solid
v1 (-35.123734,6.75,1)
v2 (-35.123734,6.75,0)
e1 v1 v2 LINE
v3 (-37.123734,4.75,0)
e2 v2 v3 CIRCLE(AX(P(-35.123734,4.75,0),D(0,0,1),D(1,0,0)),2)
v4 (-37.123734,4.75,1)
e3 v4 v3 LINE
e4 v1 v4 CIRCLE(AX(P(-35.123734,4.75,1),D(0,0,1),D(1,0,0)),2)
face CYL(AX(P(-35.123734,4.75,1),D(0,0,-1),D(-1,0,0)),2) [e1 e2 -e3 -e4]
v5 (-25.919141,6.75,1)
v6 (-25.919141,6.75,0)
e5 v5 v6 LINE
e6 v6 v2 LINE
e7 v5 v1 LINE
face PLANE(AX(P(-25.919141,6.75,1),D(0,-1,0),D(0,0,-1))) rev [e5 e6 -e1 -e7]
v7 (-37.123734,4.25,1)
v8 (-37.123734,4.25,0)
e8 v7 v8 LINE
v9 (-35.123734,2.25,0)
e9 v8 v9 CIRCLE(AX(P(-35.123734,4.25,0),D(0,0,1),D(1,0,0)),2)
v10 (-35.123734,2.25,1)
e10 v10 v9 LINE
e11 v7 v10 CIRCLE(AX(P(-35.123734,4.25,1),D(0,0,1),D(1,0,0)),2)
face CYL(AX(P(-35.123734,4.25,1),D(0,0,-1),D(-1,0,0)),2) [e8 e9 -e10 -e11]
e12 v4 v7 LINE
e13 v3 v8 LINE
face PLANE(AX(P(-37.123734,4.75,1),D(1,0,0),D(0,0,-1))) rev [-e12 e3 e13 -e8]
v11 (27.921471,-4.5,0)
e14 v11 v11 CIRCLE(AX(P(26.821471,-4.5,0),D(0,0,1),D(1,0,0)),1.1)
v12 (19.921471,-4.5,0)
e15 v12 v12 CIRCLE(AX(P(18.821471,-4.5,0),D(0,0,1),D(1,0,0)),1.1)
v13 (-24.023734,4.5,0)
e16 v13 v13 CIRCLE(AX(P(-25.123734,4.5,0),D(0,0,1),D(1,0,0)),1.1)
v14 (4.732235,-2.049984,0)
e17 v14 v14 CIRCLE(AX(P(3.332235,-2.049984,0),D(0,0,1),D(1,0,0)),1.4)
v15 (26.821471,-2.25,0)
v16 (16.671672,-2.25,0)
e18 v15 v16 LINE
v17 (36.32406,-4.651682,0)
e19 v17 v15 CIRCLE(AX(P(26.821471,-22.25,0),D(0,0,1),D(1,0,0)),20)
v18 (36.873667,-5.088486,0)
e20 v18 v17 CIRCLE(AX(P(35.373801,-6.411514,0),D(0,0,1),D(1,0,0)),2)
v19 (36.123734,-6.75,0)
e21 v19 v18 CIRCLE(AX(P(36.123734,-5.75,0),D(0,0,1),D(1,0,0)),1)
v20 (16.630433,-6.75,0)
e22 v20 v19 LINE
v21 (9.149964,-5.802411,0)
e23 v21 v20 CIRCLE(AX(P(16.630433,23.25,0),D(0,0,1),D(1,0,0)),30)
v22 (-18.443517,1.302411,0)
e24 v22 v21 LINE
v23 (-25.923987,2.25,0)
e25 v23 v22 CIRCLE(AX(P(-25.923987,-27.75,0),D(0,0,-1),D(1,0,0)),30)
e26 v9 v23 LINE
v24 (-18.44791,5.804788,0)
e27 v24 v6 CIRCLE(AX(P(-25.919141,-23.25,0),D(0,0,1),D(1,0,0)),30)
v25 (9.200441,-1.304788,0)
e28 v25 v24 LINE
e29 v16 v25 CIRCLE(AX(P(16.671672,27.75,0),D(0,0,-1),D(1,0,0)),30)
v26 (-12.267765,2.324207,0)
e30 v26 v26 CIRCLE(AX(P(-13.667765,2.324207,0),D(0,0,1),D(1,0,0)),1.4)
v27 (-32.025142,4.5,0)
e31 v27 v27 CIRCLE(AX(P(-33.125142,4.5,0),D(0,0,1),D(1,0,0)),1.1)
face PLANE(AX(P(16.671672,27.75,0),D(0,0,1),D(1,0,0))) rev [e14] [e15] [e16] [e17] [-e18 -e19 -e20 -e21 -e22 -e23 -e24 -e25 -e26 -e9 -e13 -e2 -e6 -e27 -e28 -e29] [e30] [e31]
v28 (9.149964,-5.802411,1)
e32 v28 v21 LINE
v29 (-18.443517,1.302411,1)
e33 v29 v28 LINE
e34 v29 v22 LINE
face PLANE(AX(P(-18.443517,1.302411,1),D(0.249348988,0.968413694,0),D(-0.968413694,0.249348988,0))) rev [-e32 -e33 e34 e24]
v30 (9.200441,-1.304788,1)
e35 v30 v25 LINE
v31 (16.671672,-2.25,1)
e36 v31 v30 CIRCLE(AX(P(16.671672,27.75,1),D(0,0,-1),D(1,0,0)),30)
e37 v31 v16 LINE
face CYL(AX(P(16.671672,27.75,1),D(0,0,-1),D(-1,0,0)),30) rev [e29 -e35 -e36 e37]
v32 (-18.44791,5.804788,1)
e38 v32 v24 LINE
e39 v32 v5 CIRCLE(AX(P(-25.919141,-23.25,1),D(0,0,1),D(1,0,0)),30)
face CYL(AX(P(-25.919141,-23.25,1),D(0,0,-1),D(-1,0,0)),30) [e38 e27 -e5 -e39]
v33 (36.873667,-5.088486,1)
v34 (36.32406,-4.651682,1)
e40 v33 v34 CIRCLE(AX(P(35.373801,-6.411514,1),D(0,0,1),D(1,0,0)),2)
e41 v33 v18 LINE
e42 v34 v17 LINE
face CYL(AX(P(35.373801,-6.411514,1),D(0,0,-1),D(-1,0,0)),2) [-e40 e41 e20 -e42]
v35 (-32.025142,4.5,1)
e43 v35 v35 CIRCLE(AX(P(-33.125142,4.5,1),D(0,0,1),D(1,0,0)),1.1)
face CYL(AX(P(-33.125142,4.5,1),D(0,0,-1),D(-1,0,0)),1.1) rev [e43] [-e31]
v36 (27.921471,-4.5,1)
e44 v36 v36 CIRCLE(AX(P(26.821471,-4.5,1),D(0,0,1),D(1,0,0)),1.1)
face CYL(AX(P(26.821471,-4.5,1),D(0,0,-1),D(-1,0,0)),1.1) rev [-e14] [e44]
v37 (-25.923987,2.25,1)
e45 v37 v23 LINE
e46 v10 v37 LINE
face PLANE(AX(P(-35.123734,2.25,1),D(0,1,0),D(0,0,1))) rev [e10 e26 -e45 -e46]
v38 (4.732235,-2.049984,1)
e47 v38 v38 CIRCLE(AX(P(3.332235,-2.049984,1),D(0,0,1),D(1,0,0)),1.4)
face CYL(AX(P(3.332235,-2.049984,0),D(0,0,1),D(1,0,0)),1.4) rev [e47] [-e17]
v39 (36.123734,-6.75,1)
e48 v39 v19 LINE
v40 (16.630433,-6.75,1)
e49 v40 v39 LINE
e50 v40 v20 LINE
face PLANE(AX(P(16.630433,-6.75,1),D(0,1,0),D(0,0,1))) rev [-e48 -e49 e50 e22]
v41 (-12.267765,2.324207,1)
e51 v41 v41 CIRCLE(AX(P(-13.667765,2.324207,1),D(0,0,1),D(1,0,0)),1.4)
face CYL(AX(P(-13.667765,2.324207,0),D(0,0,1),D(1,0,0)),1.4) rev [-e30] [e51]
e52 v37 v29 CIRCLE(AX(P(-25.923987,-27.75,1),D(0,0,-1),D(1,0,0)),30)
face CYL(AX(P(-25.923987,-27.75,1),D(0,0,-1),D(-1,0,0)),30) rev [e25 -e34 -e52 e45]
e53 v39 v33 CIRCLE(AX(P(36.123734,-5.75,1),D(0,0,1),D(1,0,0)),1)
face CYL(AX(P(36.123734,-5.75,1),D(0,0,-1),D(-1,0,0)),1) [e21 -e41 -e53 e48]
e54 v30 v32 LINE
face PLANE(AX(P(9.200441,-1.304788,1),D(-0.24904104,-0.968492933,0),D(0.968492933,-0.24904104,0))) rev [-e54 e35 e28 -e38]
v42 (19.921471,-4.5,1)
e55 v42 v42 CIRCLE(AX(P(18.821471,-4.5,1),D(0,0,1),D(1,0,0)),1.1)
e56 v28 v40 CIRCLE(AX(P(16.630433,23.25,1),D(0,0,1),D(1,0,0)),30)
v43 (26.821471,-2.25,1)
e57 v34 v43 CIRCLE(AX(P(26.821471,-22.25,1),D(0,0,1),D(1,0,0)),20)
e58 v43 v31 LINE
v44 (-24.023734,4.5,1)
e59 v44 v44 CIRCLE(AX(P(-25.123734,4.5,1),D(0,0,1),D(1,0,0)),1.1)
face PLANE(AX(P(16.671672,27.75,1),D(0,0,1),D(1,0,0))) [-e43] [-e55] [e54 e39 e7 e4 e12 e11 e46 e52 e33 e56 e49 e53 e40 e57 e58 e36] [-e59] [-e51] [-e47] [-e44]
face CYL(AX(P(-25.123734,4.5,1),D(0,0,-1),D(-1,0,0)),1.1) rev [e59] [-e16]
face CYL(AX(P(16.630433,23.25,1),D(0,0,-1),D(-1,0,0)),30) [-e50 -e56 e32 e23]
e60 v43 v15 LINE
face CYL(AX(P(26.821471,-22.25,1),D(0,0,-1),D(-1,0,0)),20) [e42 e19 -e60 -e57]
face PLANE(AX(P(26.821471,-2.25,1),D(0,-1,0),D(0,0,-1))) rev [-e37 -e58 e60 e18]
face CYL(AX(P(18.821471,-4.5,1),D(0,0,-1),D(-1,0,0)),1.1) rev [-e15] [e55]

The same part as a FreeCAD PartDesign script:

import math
import FreeCAD as App
import Part
import Sketcher

V = App.Vector

doc = App.newDocument("Part")
params = doc.addObject("Spreadsheet::Sheet", "Params")
for row, (alias, value) in enumerate([
    ("sketch1_radius", "30 mm"),
    ("sketch1_radius2", "2 mm"),
    ("sketch1_radius3", "1 mm"),
    ("sketch1_radius4", "20 mm"),
    ("sketch1_diameter", "2.2 mm"),
    ("pad1_length", "1 mm"),
    ("sketch2_diameter", "2.8 mm"),
], start=1):
    params.set(f"A{row}", alias)
    params.set(f"B{row}", "=" + value)
    params.setAlias(f"B{row}", alias)

body = doc.addObject("PartDesign::Body", "Body")

# Sketch on XY plane
sketch1 = body.newObject("Sketcher::SketchObject", "Sketch")
sketch1.AttachmentSupport = (doc.getObject("XY_Plane"), [""])
sketch1.MapMode = "FlatFace"
sketch1.addGeometry(Part.LineSegment(V(9.200441, -1.304788, 0), V(-18.44791, 5.804788, 0)), False)
sketch1.addGeometry(Part.ArcOfCircle(Part.Circle(V(-25.919141, -23.25, 0), V(0, 0, 1), 30), math.radians(75.579227), math.radians(90)), False)
sketch1.addGeometry(Part.LineSegment(V(-25.919141, 6.75, 0), V(-35.123734, 6.75, 0)), False)
sketch1.addGeometry(Part.ArcOfCircle(Part.Circle(V(-35.123734, 4.75, 0), V(0, 0, 1), 2), math.radians(90), math.radians(180)), False)
sketch1.addGeometry(Part.LineSegment(V(-37.123734, 4.75, 0), V(-37.123734, 4.25, 0)), False)
sketch1.addGeometry(Part.ArcOfCircle(Part.Circle(V(-35.123734, 4.25, 0), V(0, 0, 1), 2), math.radians(-180), math.radians(-90)), False)
sketch1.addGeometry(Part.LineSegment(V(-35.123734, 2.25, 0), V(-25.923987, 2.25, 0)), False)
sketch1.addGeometry(Part.ArcOfCircle(Part.Circle(V(-25.923987, -27.75, 0), V(0, 0, 1), 30), math.radians(75.561008), math.radians(90)), False)
sketch1.addGeometry(Part.LineSegment(V(-18.443517, 1.302411, 0), V(9.149964, -5.802411, 0)), False)
sketch1.addGeometry(Part.ArcOfCircle(Part.Circle(V(16.630433, 23.25, 0), V(0, 0, 1), 30), math.radians(-104.438992), math.radians(-90)), False)
sketch1.addGeometry(Part.LineSegment(V(16.630433, -6.75, 0), V(36.123734, -6.75, 0)), False)
sketch1.addGeometry(Part.ArcOfCircle(Part.Circle(V(36.123734, -5.75, 0), V(0, 0, 1), 1), math.radians(-90), math.radians(41.415406)), False)
sketch1.addGeometry(Part.ArcOfCircle(Part.Circle(V(35.373801, -6.411514, 0), V(0, 0, 1), 2), math.radians(41.415406), math.radians(61.632222)), False)
sketch1.addGeometry(Part.ArcOfCircle(Part.Circle(V(26.821471, -22.25, 0), V(0, 0, 1), 20), math.radians(61.632222), math.radians(90)), False)
sketch1.addGeometry(Part.LineSegment(V(26.821471, -2.25, 0), V(16.671672, -2.25, 0)), False)
sketch1.addGeometry(Part.ArcOfCircle(Part.Circle(V(16.671672, 27.75, 0), V(0, 0, 1), 30), math.radians(-104.420773), math.radians(-90)), False)
sketch1.addGeometry(Part.Circle(V(18.821471, -4.5, 0), V(0, 0, 1), 1.1), False)
sketch1.addGeometry(Part.Circle(V(26.821471, -4.5, 0), V(0, 0, 1), 1.1), False)
sketch1.addGeometry(Part.Circle(V(-33.125142, 4.5, 0), V(0, 0, 1), 1.1), False)
sketch1.addGeometry(Part.Circle(V(-25.123734, 4.5, 0), V(0, 0, 1), 1.1), False)
sketch1.addConstraint(Sketcher.Constraint("Tangent", 0, 2, 1, 1))
sketch1.addConstraint(Sketcher.Constraint("Tangent", 1, 2, 2, 1))
sketch1.addConstraint(Sketcher.Constraint("Tangent", 2, 2, 3, 1))
sketch1.addConstraint(Sketcher.Constraint("Tangent", 3, 2, 4, 1))
sketch1.addConstraint(Sketcher.Constraint("Tangent", 4, 2, 5, 1))
sketch1.addConstraint(Sketcher.Constraint("Tangent", 5, 2, 6, 1))
sketch1.addConstraint(Sketcher.Constraint("Tangent", 6, 2, 7, 2))
sketch1.addConstraint(Sketcher.Constraint("Tangent", 7, 1, 8, 1))
sketch1.addConstraint(Sketcher.Constraint("Tangent", 8, 2, 9, 1))
sketch1.addConstraint(Sketcher.Constraint("Tangent", 9, 2, 10, 1))
sketch1.addConstraint(Sketcher.Constraint("Tangent", 10, 2, 11, 1))
sketch1.addConstraint(Sketcher.Constraint("Tangent", 11, 2, 12, 1))
sketch1.addConstraint(Sketcher.Constraint("Tangent", 12, 2, 13, 1))
sketch1.addConstraint(Sketcher.Constraint("Tangent", 13, 2, 14, 1))
sketch1.addConstraint(Sketcher.Constraint("Tangent", 14, 2, 15, 2))
sketch1.addConstraint(Sketcher.Constraint("Tangent", 15, 1, 0, 1))
sketch1.addConstraint(Sketcher.Constraint("Horizontal", 2))
sketch1.addConstraint(Sketcher.Constraint("Vertical", 4))
sketch1.addConstraint(Sketcher.Constraint("Horizontal", 6))
sketch1.addConstraint(Sketcher.Constraint("Horizontal", 10))
sketch1.addConstraint(Sketcher.Constraint("Horizontal", 14))
sketch1.addConstraint(Sketcher.Constraint("Equal", 3, 5))
sketch1.addConstraint(Sketcher.Constraint("Equal", 1, 7))
sketch1.addConstraint(Sketcher.Constraint("Equal", 7, 9))
sketch1.addConstraint(Sketcher.Constraint("Equal", 5, 12))
sketch1.addConstraint(Sketcher.Constraint("Equal", 9, 15))
sketch1.addConstraint(Sketcher.Constraint("Equal", 16, 17))
sketch1.addConstraint(Sketcher.Constraint("Equal", 17, 18))
sketch1.addConstraint(Sketcher.Constraint("Equal", 18, 19))
sketch1.addConstraint(Sketcher.Constraint("Horizontal", 16, 3, 17, 3))
sketch1.addConstraint(Sketcher.Constraint("Horizontal", 18, 3, 19, 3))
sketch1.addConstraint(Sketcher.Constraint("Vertical", 13, 3, 17, 3))
sketch1.addConstraint(Sketcher.Constraint("Radius", 1, 30.0))
sketch1.addConstraint(Sketcher.Constraint("Radius", 3, 2.0))
sketch1.addConstraint(Sketcher.Constraint("Radius", 11, 1.0))
sketch1.addConstraint(Sketcher.Constraint("Radius", 13, 20.0))
sketch1.addConstraint(Sketcher.Constraint("Diameter", 16, 2.2))
sketch1.addConstraint(Sketcher.Constraint("DistanceY", 4, 2, 4, 1, 0.5))
sketch1.addConstraint(Sketcher.Constraint("DistanceY", 5, 3, 9, 3, 19.0))
sketch1.addConstraint(Sketcher.Constraint("DistanceY", 1, 3, 13, 3, 1.0))
sketch1.addConstraint(Sketcher.Constraint("DistanceX", 16, 3, 13, 3, 8.0))
sketch1.addConstraint(Sketcher.Constraint("DistanceY", 16, 3, 18, 3, 9.0))
sketch1.addConstraint(Sketcher.Constraint("DistanceX", 3, 3, 19, 3, 10.0))
sketch1.addConstraint(Sketcher.Constraint("DistanceY", 16, 3, -1, 1, 4.5))
sketch1.addConstraint(Sketcher.Constraint("DistanceY", 1, 3, -1, 1, 23.25))
sketch1.addConstraint(Sketcher.Constraint("DistanceX", 10, 1, 10, 2, 19.493301))
sketch1.addConstraint(Sketcher.Constraint("DistanceX", 14, 2, 14, 1, 10.149799))
sketch1.addConstraint(Sketcher.Constraint("DistanceX", 18, 3, 1, 3, 7.206001))
sketch1.addConstraint(Sketcher.Constraint("DistanceX", -1, 1, 12, 3, 35.373801))
sketch1.addConstraint(Sketcher.Constraint("Distance", 0, 28.547809))
sketch1.addConstraint(Sketcher.Constraint("DistanceX", 2, 2, 2, 1, 9.204593))
sketch1.addConstraint(Sketcher.Constraint("DistanceX", 6, 1, 6, 2, 9.199747))
sketch1.addConstraint(Sketcher.Constraint("DistanceX", 1, 3, -1, 1, 25.919141))
sketch1.setExpression("Constraints[32]", "Params.sketch1_radius")
sketch1.setExpression("Constraints[33]", "Params.sketch1_radius2")
sketch1.setExpression("Constraints[34]", "Params.sketch1_radius3")
sketch1.setExpression("Constraints[35]", "Params.sketch1_radius4")
sketch1.setExpression("Constraints[36]", "Params.sketch1_diameter")
pad1 = body.newObject("PartDesign::Pad", "Pad")
pad1.Profile = sketch1
pad1.setExpression("Length", "Params.pad1_length")

# Sketch on XY plane
sketch2 = body.newObject("Sketcher::SketchObject", "Sketch001")
sketch2.AttachmentSupport = (doc.getObject("XY_Plane"), [""])
sketch2.MapMode = "FlatFace"
sketch2.AttachmentOffset = App.Placement(V(0, 0, 1), App.Rotation())
sketch2.addGeometry(Part.Circle(V(-13.667765, 2.324207, 0), V(0, 0, 1), 1.4), False)
sketch2.addGeometry(Part.Circle(V(3.332235, -2.049984, 0), V(0, 0, 1), 1.4), False)
sketch2.addConstraint(Sketcher.Constraint("Equal", 0, 1))
sketch2.addConstraint(Sketcher.Constraint("Diameter", 0, 2.8))
sketch2.addConstraint(Sketcher.Constraint("DistanceX", 0, 3, 1, 3, 17.0))
sketch2.addConstraint(Sketcher.Constraint("DistanceY", 1, 3, 0, 3, 4.374192))
sketch2.addConstraint(Sketcher.Constraint("DistanceX", 0, 3, -1, 1, 13.667765))
sketch2.addConstraint(Sketcher.Constraint("DistanceY", -1, 1, 0, 3, 2.324207))
sketch2.setExpression("Constraints[1]", "Params.sketch2_diameter")
pocket1 = body.newObject("PartDesign::Pocket", "Pocket")
pocket1.Profile = sketch2
pocket1.Type = "ThroughAll"

doc.recompute()
